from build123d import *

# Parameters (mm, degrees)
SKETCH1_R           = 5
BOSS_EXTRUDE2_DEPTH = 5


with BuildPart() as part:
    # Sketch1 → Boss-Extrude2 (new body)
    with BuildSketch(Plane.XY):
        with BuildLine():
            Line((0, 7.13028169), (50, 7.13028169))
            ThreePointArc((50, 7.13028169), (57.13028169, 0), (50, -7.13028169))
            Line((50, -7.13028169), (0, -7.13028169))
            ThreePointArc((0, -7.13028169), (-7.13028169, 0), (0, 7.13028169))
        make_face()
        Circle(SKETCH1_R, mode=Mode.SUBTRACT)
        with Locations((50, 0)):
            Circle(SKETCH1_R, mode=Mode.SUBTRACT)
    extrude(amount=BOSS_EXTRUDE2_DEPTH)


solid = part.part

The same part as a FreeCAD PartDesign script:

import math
import FreeCAD as App
import Part
import Sketcher

V = App.Vector

doc = App.newDocument("Part")
body = doc.addObject("PartDesign::Body", "Body")

# Sketch on XY plane
sketch1 = body.newObject("Sketcher::SketchObject", "Sketch")
sketch1.AttachmentSupport = (doc.getObject("XY_Plane"), [""])
sketch1.MapMode = "FlatFace"
sketch1.addGeometry(Part.LineSegment(V(50, 7, 0), V(0, 7, 0)), False)
sketch1.addGeometry(Part.ArcOfCircle(Part.Circle(V(0, 0, 0), V(0, 0, 1), 7), math.radians(90), math.radians(270)), False)
sketch1.addGeometry(Part.LineSegment(V(0, -7, 0), V(50, -7, 0)), False)
sketch1.addGeometry(Part.ArcOfCircle(Part.Circle(V(50, 0, 0), V(0, 0, 1), 7), math.radians(-90), math.radians(90)), False)
sketch1.addGeometry(Part.Circle(V(50, 0, 0), V(0, 0, 1), 5), False)
sketch1.addGeometry(Part.Circle(V(0, 0, 0), V(0, 0, 1), 5), False)
sketch1.addConstraint(Sketcher.Constraint("Tangent", 0, 2, 1, 1))
sketch1.addConstraint(Sketcher.Constraint("Tangent", 1, 2, 2, 1))
sketch1.addConstraint(Sketcher.Constraint("Tangent", 2, 2, 3, 1))
sketch1.addConstraint(Sketcher.Constraint("Tangent", 3, 2, 0, 1))
sketch1.addConstraint(Sketcher.Constraint("Horizontal", 0))
sketch1.addConstraint(Sketcher.Constraint("Horizontal", 2))
sketch1.addConstraint(Sketcher.Constraint("Coincident", 1, 3, -1, 1))
sketch1.addConstraint(Sketcher.Constraint("Coincident", 5, 3, -1, 1))
sketch1.addConstraint(Sketcher.Constraint("Coincident", 4, 3, 3, 3))
sketch1.addConstraint(Sketcher.Constraint("Equal", 4, 5))
sketch1.addConstraint(Sketcher.Constraint("Diameter", 4, 10.0))
sketch1.addConstraint(Sketcher.Constraint("DistanceX", 0, 2, 0, 1, 50.0))
sketch1.addConstraint(Sketcher.Constraint("Radius", 1, 7.130282))
pad1 = body.newObject("PartDesign::Pad", "Pad")
pad1.Profile = sketch1
pad1.Length = 5

doc.recompute()
